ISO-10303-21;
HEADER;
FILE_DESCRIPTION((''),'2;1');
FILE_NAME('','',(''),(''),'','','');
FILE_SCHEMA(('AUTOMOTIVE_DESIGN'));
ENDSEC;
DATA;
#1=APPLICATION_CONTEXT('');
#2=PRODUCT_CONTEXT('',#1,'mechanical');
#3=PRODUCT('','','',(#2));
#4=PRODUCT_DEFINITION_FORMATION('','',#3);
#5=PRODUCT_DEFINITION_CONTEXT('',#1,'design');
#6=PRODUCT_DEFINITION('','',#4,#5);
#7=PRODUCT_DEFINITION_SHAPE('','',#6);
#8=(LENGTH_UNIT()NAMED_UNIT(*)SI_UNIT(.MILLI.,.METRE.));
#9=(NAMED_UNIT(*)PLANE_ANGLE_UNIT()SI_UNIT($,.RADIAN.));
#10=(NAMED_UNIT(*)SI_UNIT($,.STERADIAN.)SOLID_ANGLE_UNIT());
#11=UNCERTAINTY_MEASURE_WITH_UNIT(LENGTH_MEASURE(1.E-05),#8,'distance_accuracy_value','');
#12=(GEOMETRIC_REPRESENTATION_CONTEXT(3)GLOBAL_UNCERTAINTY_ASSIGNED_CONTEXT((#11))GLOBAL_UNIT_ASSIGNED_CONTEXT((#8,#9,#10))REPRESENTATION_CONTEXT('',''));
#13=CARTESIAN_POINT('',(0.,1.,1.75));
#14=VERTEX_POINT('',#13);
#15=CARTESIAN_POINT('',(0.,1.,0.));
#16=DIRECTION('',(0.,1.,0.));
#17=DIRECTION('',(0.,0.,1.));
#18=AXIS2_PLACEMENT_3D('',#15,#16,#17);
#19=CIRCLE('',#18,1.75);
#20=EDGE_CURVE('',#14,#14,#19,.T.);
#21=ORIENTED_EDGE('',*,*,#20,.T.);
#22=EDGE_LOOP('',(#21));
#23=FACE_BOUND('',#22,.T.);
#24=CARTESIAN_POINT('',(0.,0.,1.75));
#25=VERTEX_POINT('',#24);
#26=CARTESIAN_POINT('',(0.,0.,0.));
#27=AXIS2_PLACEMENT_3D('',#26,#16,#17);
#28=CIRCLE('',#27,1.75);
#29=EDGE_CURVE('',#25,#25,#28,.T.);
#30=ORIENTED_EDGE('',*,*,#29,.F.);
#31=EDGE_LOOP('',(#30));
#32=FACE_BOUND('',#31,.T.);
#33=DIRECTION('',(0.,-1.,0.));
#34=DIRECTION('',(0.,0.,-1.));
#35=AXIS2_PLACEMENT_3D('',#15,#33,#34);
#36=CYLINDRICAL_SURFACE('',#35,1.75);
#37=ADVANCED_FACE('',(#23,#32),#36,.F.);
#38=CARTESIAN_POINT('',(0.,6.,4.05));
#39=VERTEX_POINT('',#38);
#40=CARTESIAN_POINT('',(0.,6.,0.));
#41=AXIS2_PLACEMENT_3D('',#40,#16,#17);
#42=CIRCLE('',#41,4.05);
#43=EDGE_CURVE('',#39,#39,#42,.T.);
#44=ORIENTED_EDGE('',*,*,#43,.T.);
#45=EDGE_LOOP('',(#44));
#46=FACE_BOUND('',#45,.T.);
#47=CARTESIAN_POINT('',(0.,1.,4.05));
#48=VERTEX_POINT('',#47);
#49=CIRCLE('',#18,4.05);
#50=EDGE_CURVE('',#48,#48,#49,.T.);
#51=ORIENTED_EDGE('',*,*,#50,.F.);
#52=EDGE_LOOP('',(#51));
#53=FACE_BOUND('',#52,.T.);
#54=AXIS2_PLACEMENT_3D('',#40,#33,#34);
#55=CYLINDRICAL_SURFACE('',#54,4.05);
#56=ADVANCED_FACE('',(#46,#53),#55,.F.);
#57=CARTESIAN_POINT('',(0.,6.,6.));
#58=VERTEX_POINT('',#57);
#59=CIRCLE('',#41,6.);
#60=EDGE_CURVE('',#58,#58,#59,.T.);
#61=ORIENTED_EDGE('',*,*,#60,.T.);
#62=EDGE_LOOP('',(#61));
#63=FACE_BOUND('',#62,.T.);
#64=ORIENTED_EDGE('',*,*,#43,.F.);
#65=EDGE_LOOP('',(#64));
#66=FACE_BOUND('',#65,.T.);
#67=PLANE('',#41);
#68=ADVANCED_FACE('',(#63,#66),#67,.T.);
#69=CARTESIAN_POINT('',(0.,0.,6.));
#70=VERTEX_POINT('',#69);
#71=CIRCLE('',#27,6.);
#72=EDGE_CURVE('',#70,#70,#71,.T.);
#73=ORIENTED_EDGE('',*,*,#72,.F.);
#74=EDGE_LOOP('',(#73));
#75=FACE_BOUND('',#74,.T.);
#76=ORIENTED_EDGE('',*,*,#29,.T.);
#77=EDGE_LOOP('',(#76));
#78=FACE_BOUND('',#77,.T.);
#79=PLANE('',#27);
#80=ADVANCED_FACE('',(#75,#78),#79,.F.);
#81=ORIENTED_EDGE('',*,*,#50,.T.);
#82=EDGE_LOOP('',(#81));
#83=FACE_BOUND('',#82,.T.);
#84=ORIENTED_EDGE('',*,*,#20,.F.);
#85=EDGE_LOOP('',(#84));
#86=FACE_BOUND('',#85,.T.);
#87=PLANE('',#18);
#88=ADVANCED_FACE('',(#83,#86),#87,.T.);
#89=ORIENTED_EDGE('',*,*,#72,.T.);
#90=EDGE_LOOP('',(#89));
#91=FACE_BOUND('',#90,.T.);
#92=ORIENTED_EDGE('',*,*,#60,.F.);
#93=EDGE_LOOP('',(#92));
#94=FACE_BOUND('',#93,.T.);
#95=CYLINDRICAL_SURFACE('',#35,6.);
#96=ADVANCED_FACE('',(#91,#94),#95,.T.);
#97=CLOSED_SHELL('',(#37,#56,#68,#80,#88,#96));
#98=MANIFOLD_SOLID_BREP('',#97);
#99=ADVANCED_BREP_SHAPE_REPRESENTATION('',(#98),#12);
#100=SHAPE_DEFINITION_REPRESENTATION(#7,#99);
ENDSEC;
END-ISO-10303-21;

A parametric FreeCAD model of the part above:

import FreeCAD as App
import Part
import Sketcher
from FreeCAD import Vector

doc = App.newDocument("Part")
body = doc.addObject("PartDesign::Body", "Body")

sketch1 = body.newObject("Sketcher::SketchObject", "Sketch")
sketch1.AttachmentSupport = (doc.getObject("XZ_Plane"), [""])
sketch1.MapMode = "FlatFace"
sketch1.addGeometry(Part.Circle(Vector(0, 0, 0), Vector(0, 0, 1), 6), False)
sketch1.addGeometry(Part.Circle(Vector(0, 0, 0), Vector(0, 0, 1), 1.75), False)
sketch1.addConstraint(Sketcher.Constraint("Coincident", 0, 3, -1, 1))
sketch1.addConstraint(Sketcher.Constraint("Coincident", 1, 3, -1, 1))
sketch1.addConstraint(Sketcher.Constraint("Diameter", 0, 12.0))
sketch1.addConstraint(Sketcher.Constraint("Diameter", 1, 3.5))
pad1 = body.newObject("PartDesign::Pad", "Pad")
pad1.Profile = sketch1
pad1.Length = 1
pad1.Reversed = True

sketch2 = body.newObject("Sketcher::SketchObject", "Sketch001")
sketch2.AttachmentSupport = (doc.getObject("XZ_Plane"), [""])
sketch2.MapMode = "FlatFace"
sketch2.AttachmentOffset = App.Placement(Vector(0, 0, -1), App.Rotation())
sketch2.addGeometry(Part.Circle(Vector(0, 0, 0), Vector(0, 0, 1), 6), False)
sketch2.addGeometry(Part.Circle(Vector(0, 0, 0), Vector(0, 0, 1), 4.05), False)
sketch2.addConstraint(Sketcher.Constraint("Coincident", 0, 3, -1, 1))
sketch2.addConstraint(Sketcher.Constraint("Coincident", 1, 3, -1, 1))
sketch2.addConstraint(Sketcher.Constraint("Diameter", 0, 12.0))
sketch2.addConstraint(Sketcher.Constraint("Diameter", 1, 8.1))
pad2 = body.newObject("PartDesign::Pad", "Pad001")
pad2.Profile = sketch2
pad2.Length = 5
pad2.Reversed = True

doc.recompute()
